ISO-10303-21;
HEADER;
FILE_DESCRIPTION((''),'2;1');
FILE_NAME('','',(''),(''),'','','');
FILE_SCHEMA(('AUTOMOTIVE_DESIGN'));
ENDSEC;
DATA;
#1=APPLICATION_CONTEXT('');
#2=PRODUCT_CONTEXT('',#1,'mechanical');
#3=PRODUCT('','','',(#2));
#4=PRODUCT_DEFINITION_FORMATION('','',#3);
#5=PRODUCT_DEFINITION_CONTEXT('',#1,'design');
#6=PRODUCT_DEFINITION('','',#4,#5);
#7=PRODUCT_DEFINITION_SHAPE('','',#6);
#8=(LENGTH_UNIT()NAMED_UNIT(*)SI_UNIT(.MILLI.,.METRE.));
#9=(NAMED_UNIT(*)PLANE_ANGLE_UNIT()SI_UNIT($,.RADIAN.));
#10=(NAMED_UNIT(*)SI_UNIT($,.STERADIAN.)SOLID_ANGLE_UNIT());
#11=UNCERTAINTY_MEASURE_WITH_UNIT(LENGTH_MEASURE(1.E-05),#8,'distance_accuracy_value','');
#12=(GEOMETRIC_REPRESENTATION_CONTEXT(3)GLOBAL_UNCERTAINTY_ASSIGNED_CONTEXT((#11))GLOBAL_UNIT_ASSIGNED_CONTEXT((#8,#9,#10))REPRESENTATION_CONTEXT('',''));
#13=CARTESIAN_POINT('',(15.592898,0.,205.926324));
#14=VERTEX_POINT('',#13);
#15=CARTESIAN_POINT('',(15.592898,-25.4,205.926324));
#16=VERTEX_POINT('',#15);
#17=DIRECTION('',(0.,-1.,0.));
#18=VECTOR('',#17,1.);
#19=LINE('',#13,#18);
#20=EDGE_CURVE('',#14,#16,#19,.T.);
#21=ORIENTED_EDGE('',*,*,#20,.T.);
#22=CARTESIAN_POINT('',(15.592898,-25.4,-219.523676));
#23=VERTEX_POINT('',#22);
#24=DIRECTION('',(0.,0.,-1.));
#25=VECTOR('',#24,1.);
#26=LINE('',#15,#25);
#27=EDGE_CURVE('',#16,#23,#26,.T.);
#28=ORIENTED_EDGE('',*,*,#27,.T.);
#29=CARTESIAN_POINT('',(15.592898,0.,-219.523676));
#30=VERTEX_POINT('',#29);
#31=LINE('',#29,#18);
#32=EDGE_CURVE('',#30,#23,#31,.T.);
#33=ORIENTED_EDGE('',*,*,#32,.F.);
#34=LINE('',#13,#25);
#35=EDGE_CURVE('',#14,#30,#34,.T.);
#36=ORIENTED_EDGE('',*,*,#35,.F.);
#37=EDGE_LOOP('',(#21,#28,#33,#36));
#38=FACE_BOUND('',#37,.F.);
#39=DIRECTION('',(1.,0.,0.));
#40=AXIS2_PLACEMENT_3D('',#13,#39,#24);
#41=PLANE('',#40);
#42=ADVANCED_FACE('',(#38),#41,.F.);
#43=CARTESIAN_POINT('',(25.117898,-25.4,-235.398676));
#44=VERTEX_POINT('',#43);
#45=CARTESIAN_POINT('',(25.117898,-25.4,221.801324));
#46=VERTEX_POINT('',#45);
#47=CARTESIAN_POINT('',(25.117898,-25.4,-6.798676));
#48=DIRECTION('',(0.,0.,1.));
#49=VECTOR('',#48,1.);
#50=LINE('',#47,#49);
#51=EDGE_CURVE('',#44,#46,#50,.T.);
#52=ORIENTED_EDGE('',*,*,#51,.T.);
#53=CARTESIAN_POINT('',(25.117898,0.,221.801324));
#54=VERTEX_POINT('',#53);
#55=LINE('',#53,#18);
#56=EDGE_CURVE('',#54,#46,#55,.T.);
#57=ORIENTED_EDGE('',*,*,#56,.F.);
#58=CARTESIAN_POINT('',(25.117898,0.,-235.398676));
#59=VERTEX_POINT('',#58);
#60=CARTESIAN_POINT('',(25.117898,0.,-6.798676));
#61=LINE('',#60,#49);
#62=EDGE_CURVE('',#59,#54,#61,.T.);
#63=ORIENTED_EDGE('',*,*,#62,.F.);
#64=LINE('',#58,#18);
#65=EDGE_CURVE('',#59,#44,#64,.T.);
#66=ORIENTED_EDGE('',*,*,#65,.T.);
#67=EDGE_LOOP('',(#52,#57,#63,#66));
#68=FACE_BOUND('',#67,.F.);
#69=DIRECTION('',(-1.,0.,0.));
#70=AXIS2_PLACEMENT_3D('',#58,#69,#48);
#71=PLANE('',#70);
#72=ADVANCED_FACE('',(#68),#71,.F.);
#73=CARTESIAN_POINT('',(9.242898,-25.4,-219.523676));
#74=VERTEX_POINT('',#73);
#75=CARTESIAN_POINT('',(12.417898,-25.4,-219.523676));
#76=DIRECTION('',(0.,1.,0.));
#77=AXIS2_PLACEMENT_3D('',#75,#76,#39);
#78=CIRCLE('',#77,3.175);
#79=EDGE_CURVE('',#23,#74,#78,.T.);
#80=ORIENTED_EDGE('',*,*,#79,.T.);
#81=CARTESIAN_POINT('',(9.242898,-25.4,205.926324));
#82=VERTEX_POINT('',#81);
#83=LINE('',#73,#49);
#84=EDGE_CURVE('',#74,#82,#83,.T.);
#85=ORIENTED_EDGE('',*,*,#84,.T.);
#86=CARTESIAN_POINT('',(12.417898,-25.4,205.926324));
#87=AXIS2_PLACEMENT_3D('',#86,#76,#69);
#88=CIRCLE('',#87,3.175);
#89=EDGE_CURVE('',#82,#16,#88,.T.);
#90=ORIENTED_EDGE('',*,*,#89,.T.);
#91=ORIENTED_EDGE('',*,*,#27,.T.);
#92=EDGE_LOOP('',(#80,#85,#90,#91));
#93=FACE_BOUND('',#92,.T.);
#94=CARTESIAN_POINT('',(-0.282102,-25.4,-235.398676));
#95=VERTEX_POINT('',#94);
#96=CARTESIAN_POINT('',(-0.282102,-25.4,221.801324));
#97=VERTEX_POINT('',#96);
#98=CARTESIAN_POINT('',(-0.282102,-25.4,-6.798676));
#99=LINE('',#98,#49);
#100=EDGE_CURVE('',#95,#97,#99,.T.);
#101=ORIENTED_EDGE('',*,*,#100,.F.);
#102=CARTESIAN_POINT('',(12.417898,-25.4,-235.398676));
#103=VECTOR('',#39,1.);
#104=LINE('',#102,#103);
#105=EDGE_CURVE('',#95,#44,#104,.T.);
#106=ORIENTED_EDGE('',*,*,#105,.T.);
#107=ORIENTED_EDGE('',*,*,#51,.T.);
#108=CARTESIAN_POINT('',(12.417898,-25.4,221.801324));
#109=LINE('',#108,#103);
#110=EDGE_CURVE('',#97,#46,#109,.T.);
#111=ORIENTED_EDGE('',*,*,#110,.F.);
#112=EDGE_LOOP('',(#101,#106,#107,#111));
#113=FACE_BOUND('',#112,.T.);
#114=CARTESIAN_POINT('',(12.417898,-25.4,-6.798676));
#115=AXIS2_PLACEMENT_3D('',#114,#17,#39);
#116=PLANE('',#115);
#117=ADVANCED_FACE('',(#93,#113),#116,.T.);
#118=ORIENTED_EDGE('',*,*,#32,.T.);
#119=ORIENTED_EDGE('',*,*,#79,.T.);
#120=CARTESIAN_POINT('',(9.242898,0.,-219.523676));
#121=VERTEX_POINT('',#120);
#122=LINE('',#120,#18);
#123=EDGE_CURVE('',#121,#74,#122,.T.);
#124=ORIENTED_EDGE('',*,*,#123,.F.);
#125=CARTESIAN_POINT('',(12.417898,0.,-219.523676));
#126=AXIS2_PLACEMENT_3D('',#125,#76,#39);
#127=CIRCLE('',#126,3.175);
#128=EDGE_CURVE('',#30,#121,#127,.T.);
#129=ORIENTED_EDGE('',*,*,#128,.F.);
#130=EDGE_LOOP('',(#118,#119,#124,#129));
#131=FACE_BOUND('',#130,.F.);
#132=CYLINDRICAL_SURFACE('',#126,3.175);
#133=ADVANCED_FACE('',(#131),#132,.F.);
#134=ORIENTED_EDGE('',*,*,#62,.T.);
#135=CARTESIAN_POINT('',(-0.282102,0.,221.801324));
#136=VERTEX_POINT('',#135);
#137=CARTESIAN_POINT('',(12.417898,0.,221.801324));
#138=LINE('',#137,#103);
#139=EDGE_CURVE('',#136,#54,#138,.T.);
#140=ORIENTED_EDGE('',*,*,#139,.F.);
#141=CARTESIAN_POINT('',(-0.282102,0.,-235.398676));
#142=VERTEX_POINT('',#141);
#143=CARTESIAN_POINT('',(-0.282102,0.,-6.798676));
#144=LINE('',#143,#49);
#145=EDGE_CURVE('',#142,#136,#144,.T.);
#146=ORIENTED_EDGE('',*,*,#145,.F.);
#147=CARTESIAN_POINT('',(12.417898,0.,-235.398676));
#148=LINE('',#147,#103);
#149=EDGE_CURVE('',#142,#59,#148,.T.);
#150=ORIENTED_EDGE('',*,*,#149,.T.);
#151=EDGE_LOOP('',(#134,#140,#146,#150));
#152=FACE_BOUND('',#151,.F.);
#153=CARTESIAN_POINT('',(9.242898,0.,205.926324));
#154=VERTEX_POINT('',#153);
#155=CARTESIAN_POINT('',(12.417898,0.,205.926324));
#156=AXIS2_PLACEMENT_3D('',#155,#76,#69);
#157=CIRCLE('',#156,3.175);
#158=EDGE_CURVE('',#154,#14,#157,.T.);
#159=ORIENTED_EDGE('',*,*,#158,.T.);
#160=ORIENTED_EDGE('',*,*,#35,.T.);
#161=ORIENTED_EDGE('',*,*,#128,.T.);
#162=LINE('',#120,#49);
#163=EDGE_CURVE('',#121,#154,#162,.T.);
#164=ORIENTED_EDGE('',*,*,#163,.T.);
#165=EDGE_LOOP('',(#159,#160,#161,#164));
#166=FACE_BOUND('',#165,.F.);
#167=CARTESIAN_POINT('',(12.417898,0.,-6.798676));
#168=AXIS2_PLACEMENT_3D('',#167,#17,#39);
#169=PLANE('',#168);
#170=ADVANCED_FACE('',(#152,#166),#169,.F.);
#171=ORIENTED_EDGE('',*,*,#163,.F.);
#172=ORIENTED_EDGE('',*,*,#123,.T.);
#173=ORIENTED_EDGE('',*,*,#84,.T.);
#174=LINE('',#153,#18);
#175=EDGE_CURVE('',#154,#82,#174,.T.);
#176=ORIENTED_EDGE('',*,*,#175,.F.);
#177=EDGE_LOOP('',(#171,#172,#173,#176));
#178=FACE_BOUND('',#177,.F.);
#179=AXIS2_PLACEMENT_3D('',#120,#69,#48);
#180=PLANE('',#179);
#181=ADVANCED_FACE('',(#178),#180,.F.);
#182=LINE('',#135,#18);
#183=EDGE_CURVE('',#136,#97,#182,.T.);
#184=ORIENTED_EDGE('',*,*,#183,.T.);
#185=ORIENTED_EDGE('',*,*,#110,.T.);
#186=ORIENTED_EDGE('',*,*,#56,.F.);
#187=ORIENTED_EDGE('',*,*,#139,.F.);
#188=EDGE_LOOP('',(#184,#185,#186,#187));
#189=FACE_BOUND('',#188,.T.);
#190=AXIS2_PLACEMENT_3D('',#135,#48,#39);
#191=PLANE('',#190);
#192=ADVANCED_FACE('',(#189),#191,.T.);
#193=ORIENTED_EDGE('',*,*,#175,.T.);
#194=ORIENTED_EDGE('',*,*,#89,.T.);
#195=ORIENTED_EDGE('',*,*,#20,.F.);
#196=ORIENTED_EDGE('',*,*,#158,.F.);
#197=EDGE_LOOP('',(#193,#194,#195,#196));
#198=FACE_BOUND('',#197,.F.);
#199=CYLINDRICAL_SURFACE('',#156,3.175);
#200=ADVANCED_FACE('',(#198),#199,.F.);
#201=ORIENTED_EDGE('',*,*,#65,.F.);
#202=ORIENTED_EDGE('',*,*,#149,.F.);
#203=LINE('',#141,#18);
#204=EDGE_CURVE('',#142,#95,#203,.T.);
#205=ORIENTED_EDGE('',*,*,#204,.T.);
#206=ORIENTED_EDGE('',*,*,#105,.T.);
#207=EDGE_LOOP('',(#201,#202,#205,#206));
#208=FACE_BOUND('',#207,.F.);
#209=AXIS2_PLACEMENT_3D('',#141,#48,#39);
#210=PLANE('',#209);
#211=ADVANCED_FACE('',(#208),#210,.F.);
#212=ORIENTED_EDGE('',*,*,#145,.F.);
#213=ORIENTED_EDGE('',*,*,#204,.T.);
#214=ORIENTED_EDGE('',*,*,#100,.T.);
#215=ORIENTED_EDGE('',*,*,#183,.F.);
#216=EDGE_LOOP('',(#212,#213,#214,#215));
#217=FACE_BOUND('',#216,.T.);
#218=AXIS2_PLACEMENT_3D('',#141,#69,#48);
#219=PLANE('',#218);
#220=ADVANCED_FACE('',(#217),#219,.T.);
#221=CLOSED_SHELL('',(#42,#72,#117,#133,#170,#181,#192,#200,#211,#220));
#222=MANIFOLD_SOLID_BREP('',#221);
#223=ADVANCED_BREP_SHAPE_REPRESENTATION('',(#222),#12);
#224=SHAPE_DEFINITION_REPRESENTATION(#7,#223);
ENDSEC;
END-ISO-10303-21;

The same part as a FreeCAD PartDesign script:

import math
import FreeCAD as App
import Part
import Sketcher
from FreeCAD import Vector
Q = App.Units.Quantity


def add_polygon(sketch, points):
    """Adds a closed chain of lines whose ends are joined by coincident constraints."""
    first, n = sketch.GeometryCount, len(points)
    for a, b in zip(points, points[1:] + points[:1]):
        sketch.addGeometry(Part.LineSegment(App.Vector(*a, 0), App.Vector(*b, 0)), False)
    for i in range(n):
        sketch.addConstraint(Sketcher.Constraint("Coincident", first + i, 2, first + (i + 1) % n, 1))

doc = App.newDocument("Part")
body = doc.addObject("PartDesign::Body", "Body")

# Sketch on XZ plane
sketch1 = doc.addObject("Sketcher::SketchObject", "Sketch")
body.addObject(sketch1)
sketch1.AttachmentSupport = (doc.XZ_Plane, [""])
sketch1.MapMode = "FlatFace"
add_polygon(sketch1, [(-0.3, 221.8), (-0.3, -235.4), (25.1, -235.4), (25.1, 221.8)])  # lines 0-3
sketch1.addGeometry(Part.LineSegment(Vector(9.2, -219.5, 0), Vector(9.2, 205.9, 0)), False)  # 4
sketch1.addGeometry(Part.ArcOfCircle(Part.Circle(Vector(12.4, 205.9, 0), Vector(0, 0, 1), 3.2), math.radians(0), math.radians(180)), False)  # 5
sketch1.addGeometry(Part.LineSegment(Vector(15.6, 205.9, 0), Vector(15.6, -219.5, 0)), False)  # 6
sketch1.addGeometry(Part.ArcOfCircle(Part.Circle(Vector(12.4, -219.5, 0), Vector(0, 0, 1), 3.2), math.radians(180), math.radians(360)), False)  # 7
sketch1.addConstraint([
    Sketcher.Constraint("Tangent", 4, 2, 5, 2),
    Sketcher.Constraint("Tangent", 5, 1, 6, 1),
    Sketcher.Constraint("Tangent", 6, 2, 7, 2),
    Sketcher.Constraint("Tangent", 7, 1, 4, 1),
    Sketcher.Constraint("Vertical", 0),
    Sketcher.Constraint("Horizontal", 1),
    Sketcher.Constraint("Vertical", 2),
    Sketcher.Constraint("Horizontal", 3),
    Sketcher.Constraint("Vertical", 4),
    Sketcher.Constraint("Vertical", 6),
    Sketcher.Constraint("DistanceX", 1, 1, 1, 2, Q("1 in")),
    Sketcher.Constraint("DistanceY", 0, 2, 0, 1, Q("18 in")),
    Sketcher.Constraint("Radius", 5, Q("0.125 in")),
    Sketcher.Constraint("DistanceY", 4, 1, 4, 2, Q("16.75 in")),
    Sketcher.Constraint("DistanceX", 0, 2, 7, 3, Q("0.5 in")),
    Sketcher.Constraint("DistanceY", 0, 2, 7, 3, Q("0.625 in")),
    Sketcher.Constraint("DistanceX", -1, 1, 1, 2, 25.117898),
    Sketcher.Constraint("DistanceY", -1, 1, 5, 3, 205.926324),
])
pad1 = doc.addObject("PartDesign::Pad", "Pad")
body.addObject(pad1)
pad1.Profile = sketch1
pad1.Length = Q("1 in")

doc.recompute()
